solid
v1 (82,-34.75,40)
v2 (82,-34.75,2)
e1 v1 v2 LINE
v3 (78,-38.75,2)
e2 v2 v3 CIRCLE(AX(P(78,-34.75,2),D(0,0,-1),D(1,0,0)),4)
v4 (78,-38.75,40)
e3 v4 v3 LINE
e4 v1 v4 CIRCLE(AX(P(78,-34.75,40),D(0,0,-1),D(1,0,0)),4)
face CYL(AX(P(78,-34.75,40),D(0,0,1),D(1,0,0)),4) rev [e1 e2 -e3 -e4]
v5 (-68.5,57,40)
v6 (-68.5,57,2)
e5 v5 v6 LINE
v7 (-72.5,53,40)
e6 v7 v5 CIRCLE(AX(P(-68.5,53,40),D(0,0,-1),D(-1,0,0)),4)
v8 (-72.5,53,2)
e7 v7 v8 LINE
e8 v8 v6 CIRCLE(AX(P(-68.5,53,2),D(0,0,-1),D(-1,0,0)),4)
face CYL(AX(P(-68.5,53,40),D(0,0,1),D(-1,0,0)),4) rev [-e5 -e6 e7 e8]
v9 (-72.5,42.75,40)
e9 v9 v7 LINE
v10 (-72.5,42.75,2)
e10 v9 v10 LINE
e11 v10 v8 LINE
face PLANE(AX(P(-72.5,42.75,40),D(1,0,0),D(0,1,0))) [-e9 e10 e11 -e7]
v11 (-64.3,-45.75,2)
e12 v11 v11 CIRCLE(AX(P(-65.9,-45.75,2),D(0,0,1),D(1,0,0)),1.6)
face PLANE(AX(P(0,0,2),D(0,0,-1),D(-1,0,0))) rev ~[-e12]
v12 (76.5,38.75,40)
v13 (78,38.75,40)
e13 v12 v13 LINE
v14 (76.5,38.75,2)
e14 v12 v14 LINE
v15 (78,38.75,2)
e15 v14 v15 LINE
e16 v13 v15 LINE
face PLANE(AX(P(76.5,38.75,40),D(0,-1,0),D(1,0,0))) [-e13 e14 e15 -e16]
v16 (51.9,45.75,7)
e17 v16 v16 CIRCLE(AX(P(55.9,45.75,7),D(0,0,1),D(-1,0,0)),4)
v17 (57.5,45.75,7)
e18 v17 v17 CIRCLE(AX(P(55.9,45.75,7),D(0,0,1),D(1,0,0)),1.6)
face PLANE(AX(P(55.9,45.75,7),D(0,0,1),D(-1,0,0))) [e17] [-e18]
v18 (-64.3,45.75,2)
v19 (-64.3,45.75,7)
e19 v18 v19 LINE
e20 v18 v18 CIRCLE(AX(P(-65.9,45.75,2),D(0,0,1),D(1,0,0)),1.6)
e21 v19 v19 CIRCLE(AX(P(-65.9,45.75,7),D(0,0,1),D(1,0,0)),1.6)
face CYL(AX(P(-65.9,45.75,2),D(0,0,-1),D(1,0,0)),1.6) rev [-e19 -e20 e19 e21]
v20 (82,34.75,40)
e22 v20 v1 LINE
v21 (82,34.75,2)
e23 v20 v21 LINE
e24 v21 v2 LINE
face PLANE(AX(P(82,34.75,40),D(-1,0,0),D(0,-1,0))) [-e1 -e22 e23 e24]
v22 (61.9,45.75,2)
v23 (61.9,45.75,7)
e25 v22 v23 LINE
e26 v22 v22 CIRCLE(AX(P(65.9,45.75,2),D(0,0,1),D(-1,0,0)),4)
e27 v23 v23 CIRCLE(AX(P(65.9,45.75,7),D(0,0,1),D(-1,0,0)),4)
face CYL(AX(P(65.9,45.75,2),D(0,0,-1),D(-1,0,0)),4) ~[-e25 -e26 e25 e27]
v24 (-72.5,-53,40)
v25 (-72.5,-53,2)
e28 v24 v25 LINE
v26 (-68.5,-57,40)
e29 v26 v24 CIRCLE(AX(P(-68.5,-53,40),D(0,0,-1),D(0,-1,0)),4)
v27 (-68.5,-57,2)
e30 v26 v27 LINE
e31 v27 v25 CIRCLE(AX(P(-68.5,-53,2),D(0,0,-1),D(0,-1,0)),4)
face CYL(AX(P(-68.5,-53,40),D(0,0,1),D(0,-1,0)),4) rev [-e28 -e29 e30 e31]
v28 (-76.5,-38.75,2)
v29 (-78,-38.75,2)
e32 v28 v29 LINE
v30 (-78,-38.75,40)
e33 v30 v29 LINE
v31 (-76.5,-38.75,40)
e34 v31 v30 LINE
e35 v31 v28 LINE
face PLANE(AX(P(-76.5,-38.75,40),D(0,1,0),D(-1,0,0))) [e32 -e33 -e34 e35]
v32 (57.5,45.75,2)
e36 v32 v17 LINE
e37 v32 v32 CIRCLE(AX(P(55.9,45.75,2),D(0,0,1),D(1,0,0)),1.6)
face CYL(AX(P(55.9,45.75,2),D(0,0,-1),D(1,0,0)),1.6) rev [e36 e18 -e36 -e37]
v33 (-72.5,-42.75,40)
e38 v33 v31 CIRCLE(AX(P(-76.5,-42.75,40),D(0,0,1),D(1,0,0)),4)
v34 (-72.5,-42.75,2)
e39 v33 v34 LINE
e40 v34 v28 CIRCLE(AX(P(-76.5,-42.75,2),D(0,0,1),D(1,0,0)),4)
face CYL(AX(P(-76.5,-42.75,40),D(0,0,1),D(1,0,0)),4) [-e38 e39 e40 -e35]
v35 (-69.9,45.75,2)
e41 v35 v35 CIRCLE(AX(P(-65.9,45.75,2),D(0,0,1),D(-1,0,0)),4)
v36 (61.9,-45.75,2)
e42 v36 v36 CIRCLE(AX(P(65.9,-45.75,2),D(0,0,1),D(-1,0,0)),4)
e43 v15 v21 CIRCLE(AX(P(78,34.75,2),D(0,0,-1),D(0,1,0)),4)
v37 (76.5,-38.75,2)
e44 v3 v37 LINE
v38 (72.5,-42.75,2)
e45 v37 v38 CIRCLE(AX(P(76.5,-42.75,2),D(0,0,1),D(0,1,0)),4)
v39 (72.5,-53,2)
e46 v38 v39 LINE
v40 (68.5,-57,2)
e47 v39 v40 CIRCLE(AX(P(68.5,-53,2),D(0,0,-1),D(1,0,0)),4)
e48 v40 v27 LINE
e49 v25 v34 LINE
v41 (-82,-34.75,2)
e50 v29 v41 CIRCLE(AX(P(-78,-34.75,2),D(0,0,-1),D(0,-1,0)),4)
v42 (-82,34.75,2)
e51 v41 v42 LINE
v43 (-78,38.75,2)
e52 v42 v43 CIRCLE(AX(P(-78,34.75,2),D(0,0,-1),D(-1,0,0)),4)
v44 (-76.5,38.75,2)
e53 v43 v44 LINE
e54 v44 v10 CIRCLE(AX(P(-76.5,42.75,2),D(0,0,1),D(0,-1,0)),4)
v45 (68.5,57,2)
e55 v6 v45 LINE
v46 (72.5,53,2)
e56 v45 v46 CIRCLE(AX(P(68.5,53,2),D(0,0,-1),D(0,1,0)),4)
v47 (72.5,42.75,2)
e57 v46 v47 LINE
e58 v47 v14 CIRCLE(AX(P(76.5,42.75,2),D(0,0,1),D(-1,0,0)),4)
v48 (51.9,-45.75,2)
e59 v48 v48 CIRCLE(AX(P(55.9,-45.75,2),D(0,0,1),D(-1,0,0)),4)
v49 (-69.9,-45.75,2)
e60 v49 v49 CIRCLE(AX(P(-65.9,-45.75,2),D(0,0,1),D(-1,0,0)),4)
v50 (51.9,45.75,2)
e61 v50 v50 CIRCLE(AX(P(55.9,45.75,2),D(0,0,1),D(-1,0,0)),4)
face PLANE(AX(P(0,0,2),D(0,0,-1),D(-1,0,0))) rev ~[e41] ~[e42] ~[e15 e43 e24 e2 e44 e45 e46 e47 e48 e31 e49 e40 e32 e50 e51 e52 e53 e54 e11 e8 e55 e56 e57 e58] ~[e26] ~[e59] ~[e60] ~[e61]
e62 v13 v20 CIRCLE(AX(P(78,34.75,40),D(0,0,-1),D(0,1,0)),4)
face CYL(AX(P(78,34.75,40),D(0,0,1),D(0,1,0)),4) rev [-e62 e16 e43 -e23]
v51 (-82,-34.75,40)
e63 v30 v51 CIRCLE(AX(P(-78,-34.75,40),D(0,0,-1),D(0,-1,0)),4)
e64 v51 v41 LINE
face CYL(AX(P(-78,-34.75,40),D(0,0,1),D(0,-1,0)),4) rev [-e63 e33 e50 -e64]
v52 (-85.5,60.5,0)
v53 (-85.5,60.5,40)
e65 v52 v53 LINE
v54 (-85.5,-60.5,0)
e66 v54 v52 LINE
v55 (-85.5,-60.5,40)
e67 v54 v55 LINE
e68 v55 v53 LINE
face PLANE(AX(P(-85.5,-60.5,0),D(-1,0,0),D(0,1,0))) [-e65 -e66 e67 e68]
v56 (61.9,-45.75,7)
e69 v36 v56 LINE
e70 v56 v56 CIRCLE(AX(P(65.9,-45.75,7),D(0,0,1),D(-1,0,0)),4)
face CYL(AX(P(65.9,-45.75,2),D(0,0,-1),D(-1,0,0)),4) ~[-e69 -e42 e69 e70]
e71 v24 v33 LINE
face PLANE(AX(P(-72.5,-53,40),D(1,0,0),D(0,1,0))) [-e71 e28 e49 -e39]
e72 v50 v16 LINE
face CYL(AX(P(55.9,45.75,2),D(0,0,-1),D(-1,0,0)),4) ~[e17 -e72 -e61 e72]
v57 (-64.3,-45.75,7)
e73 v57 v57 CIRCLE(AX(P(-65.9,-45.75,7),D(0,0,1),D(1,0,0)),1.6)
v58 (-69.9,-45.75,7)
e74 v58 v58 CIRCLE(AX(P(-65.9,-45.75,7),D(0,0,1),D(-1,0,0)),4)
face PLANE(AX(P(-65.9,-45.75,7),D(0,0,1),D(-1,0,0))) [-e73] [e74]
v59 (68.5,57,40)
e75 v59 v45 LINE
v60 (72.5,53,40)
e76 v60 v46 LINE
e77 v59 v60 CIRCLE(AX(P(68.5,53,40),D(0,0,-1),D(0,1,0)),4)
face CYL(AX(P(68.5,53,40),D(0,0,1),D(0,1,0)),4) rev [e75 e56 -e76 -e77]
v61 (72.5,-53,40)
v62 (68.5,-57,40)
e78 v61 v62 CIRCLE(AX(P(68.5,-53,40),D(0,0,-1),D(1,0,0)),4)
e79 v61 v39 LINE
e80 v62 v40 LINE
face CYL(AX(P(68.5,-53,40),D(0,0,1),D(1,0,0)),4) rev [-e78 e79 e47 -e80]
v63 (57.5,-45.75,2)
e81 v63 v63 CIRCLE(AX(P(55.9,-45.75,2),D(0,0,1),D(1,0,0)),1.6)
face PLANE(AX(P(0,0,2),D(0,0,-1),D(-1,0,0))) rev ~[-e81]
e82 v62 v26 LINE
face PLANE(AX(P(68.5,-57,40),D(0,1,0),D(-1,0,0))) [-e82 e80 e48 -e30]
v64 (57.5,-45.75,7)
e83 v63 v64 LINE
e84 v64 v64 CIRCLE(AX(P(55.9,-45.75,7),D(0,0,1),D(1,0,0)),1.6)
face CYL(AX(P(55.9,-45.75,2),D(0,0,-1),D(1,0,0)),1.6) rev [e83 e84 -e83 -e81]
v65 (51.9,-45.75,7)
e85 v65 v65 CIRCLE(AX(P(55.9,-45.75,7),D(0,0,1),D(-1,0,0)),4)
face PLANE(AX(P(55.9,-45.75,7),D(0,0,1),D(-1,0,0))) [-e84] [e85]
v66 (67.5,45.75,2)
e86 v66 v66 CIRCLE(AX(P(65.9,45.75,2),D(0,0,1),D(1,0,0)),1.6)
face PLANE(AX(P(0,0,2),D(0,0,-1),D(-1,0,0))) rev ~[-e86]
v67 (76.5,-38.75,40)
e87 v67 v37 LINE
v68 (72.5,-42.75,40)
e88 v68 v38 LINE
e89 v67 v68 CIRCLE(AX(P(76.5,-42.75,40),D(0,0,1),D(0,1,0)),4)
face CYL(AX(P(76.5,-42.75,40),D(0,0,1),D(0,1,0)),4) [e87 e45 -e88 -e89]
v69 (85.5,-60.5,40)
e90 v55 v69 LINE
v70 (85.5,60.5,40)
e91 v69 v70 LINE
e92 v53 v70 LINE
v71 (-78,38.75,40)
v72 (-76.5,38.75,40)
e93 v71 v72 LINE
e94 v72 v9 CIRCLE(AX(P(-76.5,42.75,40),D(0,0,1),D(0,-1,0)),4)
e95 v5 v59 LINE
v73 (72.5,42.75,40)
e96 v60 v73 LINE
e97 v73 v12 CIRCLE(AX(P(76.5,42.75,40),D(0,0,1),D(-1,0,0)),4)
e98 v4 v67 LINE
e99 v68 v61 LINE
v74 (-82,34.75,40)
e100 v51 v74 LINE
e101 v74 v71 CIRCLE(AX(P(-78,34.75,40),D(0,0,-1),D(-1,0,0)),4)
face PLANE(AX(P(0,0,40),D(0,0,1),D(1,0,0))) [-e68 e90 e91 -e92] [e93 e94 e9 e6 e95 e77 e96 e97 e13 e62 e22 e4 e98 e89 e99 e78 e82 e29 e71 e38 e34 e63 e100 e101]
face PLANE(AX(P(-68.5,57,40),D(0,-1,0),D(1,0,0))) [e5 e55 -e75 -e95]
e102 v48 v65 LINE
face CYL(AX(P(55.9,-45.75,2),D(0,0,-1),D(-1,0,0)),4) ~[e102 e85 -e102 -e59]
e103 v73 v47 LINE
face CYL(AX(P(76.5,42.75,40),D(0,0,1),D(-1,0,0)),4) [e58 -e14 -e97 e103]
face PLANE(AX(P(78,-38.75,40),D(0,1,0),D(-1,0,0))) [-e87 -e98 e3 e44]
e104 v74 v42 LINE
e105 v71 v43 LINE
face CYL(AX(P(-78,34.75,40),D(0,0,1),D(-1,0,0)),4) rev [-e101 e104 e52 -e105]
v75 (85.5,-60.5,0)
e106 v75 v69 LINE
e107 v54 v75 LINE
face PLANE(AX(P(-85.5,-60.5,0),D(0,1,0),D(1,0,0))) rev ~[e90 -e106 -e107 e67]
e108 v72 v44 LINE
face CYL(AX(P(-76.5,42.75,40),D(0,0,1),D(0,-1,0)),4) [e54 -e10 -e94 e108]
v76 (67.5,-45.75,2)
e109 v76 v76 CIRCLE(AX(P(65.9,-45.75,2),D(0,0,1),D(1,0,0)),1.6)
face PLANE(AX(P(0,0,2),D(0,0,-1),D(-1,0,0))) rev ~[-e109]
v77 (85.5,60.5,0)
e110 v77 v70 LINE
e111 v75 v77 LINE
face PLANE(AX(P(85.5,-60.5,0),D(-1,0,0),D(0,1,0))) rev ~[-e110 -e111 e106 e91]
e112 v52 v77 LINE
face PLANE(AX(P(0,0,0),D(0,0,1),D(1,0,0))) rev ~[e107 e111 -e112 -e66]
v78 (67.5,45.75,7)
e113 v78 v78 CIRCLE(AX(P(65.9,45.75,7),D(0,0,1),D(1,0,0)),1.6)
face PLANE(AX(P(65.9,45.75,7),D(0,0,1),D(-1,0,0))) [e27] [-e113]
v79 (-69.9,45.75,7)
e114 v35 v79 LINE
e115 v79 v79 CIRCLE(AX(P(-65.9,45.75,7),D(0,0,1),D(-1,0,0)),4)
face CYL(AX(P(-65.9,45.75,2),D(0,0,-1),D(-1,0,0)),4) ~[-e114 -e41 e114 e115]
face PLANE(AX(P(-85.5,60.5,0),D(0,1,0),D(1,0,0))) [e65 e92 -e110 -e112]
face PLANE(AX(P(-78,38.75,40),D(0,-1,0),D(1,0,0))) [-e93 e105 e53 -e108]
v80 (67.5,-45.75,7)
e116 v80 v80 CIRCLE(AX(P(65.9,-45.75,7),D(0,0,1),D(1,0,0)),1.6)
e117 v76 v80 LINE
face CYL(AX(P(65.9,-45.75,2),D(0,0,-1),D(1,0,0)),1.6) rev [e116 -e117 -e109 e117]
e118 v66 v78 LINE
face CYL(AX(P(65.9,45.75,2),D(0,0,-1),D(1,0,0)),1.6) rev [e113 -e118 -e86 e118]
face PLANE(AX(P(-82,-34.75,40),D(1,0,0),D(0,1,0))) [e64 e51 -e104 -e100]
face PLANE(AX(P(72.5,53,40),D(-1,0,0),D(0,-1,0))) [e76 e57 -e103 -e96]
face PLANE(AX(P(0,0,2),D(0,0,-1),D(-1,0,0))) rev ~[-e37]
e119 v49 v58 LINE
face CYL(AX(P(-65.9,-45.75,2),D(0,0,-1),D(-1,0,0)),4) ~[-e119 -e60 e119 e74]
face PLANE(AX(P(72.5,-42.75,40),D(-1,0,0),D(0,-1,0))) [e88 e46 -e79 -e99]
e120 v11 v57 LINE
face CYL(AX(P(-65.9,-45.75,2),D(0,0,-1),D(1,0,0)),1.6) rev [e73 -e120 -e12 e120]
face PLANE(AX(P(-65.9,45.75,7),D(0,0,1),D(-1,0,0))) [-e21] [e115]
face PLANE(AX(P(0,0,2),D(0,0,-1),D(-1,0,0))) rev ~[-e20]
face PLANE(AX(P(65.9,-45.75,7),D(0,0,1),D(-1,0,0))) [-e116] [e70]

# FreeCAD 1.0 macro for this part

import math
import FreeCAD as App
import Part
import Sketcher


def add_polygon(sketch, points):
    """Adds a closed chain of lines whose ends are joined by coincident constraints."""
    first, n = sketch.GeometryCount, len(points)
    for a, b in zip(points, points[1:] + points[:1]):
        sketch.addGeometry(Part.LineSegment(App.Vector(*a, 0), App.Vector(*b, 0)), False)
    for i in range(n):
        sketch.addConstraint(Sketcher.Constraint("Coincident", first + i, 2, first + (i + 1) % n, 1))

doc = App.newDocument("Part")
params = doc.addObject("Spreadsheet::Sheet", "Params")
for row, (alias, value) in enumerate([
    ("sketch1_width", "171 mm"),
    ("sketch1_height", "121 mm"),
    ("pad1_length", "40 mm"),
    ("sketch2_radius", "4 mm"),
    ("sketch2_width", "137 mm"),
    ("sketch2_width2", "1.5 mm"),
    ("sketch2_height", "69.5 mm"),
    ("pocket1_length", "38 mm"),
    ("sketch3_diameter", "8 mm"),
    ("sketch3_diameter2", "3.2 mm"),
    ("pad2_length", "5 mm"),
], start=1):
    params.set(f"A{row}", alias)
    params.set(f"B{row}", "=" + value)
    params.setAlias(f"B{row}", alias)

body = doc.addObject("PartDesign::Body", "Body")

# Sketch on XY plane
sketch1 = body.newObject("Sketcher::SketchObject", "Sketch")
sketch1.AttachmentSupport = (doc.getObject("XY_Plane"), [""])
sketch1.MapMode = "FlatFace"
add_polygon(sketch1, [(-86, 60), (-86, -60), (86, -60), (86, 60)])  # lines 0-3
sketch1.addConstraint(Sketcher.Constraint("Vertical", 0))
sketch1.addConstraint(Sketcher.Constraint("Horizontal", 1))
sketch1.addConstraint(Sketcher.Constraint("Vertical", 2))
sketch1.addConstraint(Sketcher.Constraint("Horizontal", 3))
sketch1.addConstraint(Sketcher.Constraint("Symmetric", 0, 2, 2, 2, -1, 1))
sketch1.addConstraint(Sketcher.Constraint("DistanceX", 1, 1, 1, 2, 171.0))
sketch1.addConstraint(Sketcher.Constraint("DistanceY", 0, 2, 0, 1, 121.0))
sketch1.setExpression("Constraints[9]", "Params.sketch1_width")
sketch1.setExpression("Constraints[10]", "Params.sketch1_height")
pad1 = body.newObject("PartDesign::Pad", "Pad")
pad1.Profile = sketch1
pad1.setExpression("Length", "Params.pad1_length")

# Sketch on XY plane
sketch2 = body.newObject("Sketcher::SketchObject", "Sketch001")
sketch2.AttachmentSupport = (doc.getObject("XY_Plane"), [""])
sketch2.MapMode = "FlatFace"
sketch2.AttachmentOffset = App.Placement(App.Vector(0, 0, 40), App.Rotation())
sketch2.addGeometry(Part.LineSegment(App.Vector(-76.5, 38.8, 0), App.Vector(-78, 38.8, 0)), False)
sketch2.addGeometry(Part.ArcOfCircle(Part.Circle(App.Vector(-78, 34.8, 0), App.Vector(0, 0, 1), 4), math.radians(90), math.radians(180)), False)
sketch2.addGeometry(Part.LineSegment(App.Vector(-82, 34.8, 0), App.Vector(-82, -34.8, 0)), False)
sketch2.addGeometry(Part.ArcOfCircle(Part.Circle(App.Vector(-78, -34.8, 0), App.Vector(0, 0, 1), 4), math.radians(180), math.radians(270)), False)
sketch2.addGeometry(Part.LineSegment(App.Vector(-78, -38.8, 0), App.Vector(-76.5, -38.8, 0)), False)
sketch2.addGeometry(Part.ArcOfCircle(Part.Circle(App.Vector(-76.5, -42.7, 0), App.Vector(0, 0, 1), 4), math.radians(0), math.radians(90)), False)
sketch2.addGeometry(Part.LineSegment(App.Vector(-72.5, -42.8, 0), App.Vector(-72.5, -53, 0)), False)
sketch2.addGeometry(Part.ArcOfCircle(Part.Circle(App.Vector(-68.5, -53, 0), App.Vector(0, 0, 1), 4), math.radians(180), math.radians(270)), False)
sketch2.addGeometry(Part.LineSegment(App.Vector(-68.5, -57, 0), App.Vector(68.5, -57, 0)), False)
sketch2.addGeometry(Part.ArcOfCircle(Part.Circle(App.Vector(68.5, -53, 0), App.Vector(0, 0, 1), 4), math.radians(-90), math.radians(0)), False)
sketch2.addGeometry(Part.LineSegment(App.Vector(72.5, -53, 0), App.Vector(72.5, -42.8, 0)), False)
sketch2.addGeometry(Part.ArcOfCircle(Part.Circle(App.Vector(76.5, -42.7, 0), App.Vector(0, 0, 1), 4), math.radians(90), math.radians(180)), False)
sketch2.addGeometry(Part.LineSegment(App.Vector(76.5, -38.8, 0), App.Vector(78, -38.8, 0)), False)
sketch2.addGeometry(Part.ArcOfCircle(Part.Circle(App.Vector(78, -34.8, 0), App.Vector(0, 0, 1), 4), math.radians(-90), math.radians(0)), False)
sketch2.addGeometry(Part.LineSegment(App.Vector(82, -34.8, 0), App.Vector(82, 34.8, 0)), False)
sketch2.addGeometry(Part.ArcOfCircle(Part.Circle(App.Vector(78, 34.8, 0), App.Vector(0, 0, 1), 4), math.radians(0), math.radians(90)), False)
sketch2.addGeometry(Part.LineSegment(App.Vector(78, 38.8, 0), App.Vector(76.5, 38.8, 0)), False)
sketch2.addGeometry(Part.ArcOfCircle(Part.Circle(App.Vector(76.5, 42.7, 0), App.Vector(0, 0, 1), 4), math.radians(180), math.radians(270)), False)
sketch2.addGeometry(Part.LineSegment(App.Vector(72.5, 42.8, 0), App.Vector(72.5, 53, 0)), False)
sketch2.addGeometry(Part.ArcOfCircle(Part.Circle(App.Vector(68.5, 53, 0), App.Vector(0, 0, 1), 4), math.radians(0), math.radians(90)), False)
sketch2.addGeometry(Part.LineSegment(App.Vector(68.5, 57, 0), App.Vector(-68.5, 57, 0)), False)
sketch2.addGeometry(Part.ArcOfCircle(Part.Circle(App.Vector(-68.5, 53, 0), App.Vector(0, 0, 1), 4), math.radians(90), math.radians(180)), False)
sketch2.addGeometry(Part.LineSegment(App.Vector(-72.5, 53, 0), App.Vector(-72.5, 42.8, 0)), False)
sketch2.addGeometry(Part.ArcOfCircle(Part.Circle(App.Vector(-76.5, 42.7, 0), App.Vector(0, 0, 1), 4), math.radians(-90), math.radians(0)), False)
sketch2.addConstraint(Sketcher.Constraint("Tangent", 0, 2, 1, 1))
sketch2.addConstraint(Sketcher.Constraint("Tangent", 1, 2, 2, 1))
sketch2.addConstraint(Sketcher.Constraint("Tangent", 2, 2, 3, 1))
sketch2.addConstraint(Sketcher.Constraint("Tangent", 3, 2, 4, 1))
sketch2.addConstraint(Sketcher.Constraint("Tangent", 4, 2, 5, 2))
sketch2.addConstraint(Sketcher.Constraint("Tangent", 5, 1, 6, 1))
sketch2.addConstraint(Sketcher.Constraint("Tangent", 6, 2, 7, 1))
sketch2.addConstraint(Sketcher.Constraint("Tangent", 7, 2, 8, 1))
sketch2.addConstraint(Sketcher.Constraint("Tangent", 8, 2, 9, 1))
sketch2.addConstraint(Sketcher.Constraint("Tangent", 9, 2, 10, 1))
sketch2.addConstraint(Sketcher.Constraint("Tangent", 10, 2, 11, 2))
sketch2.addConstraint(Sketcher.Constraint("Tangent", 11, 1, 12, 1))
sketch2.addConstraint(Sketcher.Constraint("Tangent", 12, 2, 13, 1))
sketch2.addConstraint(Sketcher.Constraint("Tangent", 13, 2, 14, 1))
sketch2.addConstraint(Sketcher.Constraint("Tangent", 14, 2, 15, 1))
sketch2.addConstraint(Sketcher.Constraint("Tangent", 15, 2, 16, 1))
sketch2.addConstraint(Sketcher.Constraint("Tangent", 16, 2, 17, 2))
sketch2.addConstraint(Sketcher.Constraint("Tangent", 17, 1, 18, 1))
sketch2.addConstraint(Sketcher.Constraint("Tangent", 18, 2, 19, 1))
sketch2.addConstraint(Sketcher.Constraint("Tangent", 19, 2, 20, 1))
sketch2.addConstraint(Sketcher.Constraint("Tangent", 20, 2, 21, 1))
sketch2.addConstraint(Sketcher.Constraint("Tangent", 21, 2, 22, 1))
sketch2.addConstraint(Sketcher.Constraint("Tangent", 22, 2, 23, 2))
sketch2.addConstraint(Sketcher.Constraint("Tangent", 23, 1, 0, 1))
sketch2.addConstraint(Sketcher.Constraint("Horizontal", 0))
sketch2.addConstraint(Sketcher.Constraint("Vertical", 2))
sketch2.addConstraint(Sketcher.Constraint("Horizontal", 4))
sketch2.addConstraint(Sketcher.Constraint("Vertical", 6))
sketch2.addConstraint(Sketcher.Constraint("Horizontal", 8))
sketch2.addConstraint(Sketcher.Constraint("Vertical", 10))
sketch2.addConstraint(Sketcher.Constraint("Horizontal", 12))
sketch2.addConstraint(Sketcher.Constraint("Vertical", 14))
sketch2.addConstraint(Sketcher.Constraint("Horizontal", 16))
sketch2.addConstraint(Sketcher.Constraint("Vertical", 18))
sketch2.addConstraint(Sketcher.Constraint("Horizontal", 20))
sketch2.addConstraint(Sketcher.Constraint("Vertical", 22))
sketch2.addConstraint(Sketcher.Constraint("Equal", 1, 3))
sketch2.addConstraint(Sketcher.Constraint("Equal", 3, 5))
sketch2.addConstraint(Sketcher.Constraint("Equal", 5, 7))
sketch2.addConstraint(Sketcher.Constraint("Equal", 7, 9))
sketch2.addConstraint(Sketcher.Constraint("Equal", 9, 11))
sketch2.addConstraint(Sketcher.Constraint("Equal", 11, 13))
sketch2.addConstraint(Sketcher.Constraint("Equal", 13, 15))
sketch2.addConstraint(Sketcher.Constraint("Equal", 15, 17))
sketch2.addConstraint(Sketcher.Constraint("Equal", 17, 19))
sketch2.addConstraint(Sketcher.Constraint("Equal", 19, 21))
sketch2.addConstraint(Sketcher.Constraint("Equal", 21, 23))
sketch2.addConstraint(Sketcher.Constraint("Symmetric", 1, 3, 13, 3, -1, 1))
sketch2.addConstraint(Sketcher.Constraint("Symmetric", 5, 3, 17, 3, -1, 1))
sketch2.addConstraint(Sketcher.Constraint("Symmetric", 9, 3, 21, 3, -1, 1))
sketch2.addConstraint(Sketcher.Constraint("Symmetric", 5, 3, 11, 3, -2))
sketch2.addConstraint(Sketcher.Constraint("Radius", 1, 4.0))
sketch2.addConstraint(Sketcher.Constraint("DistanceX", 8, 1, 8, 2, 137.0))
sketch2.addConstraint(Sketcher.Constraint("DistanceX", 0, 2, 0, 1, 1.5))
sketch2.addConstraint(Sketcher.Constraint("DistanceY", 2, 2, 2, 1, 69.5))
sketch2.addConstraint(Sketcher.Constraint("DistanceY", 7, 3, -1, 1, 53.0))
sketch2.setExpression("Constraints[51]", "Params.sketch2_radius")
sketch2.setExpression("Constraints[52]", "Params.sketch2_width")
sketch2.setExpression("Constraints[53]", "Params.sketch2_width2")
sketch2.setExpression("Constraints[54]", "Params.sketch2_height")
pocket1 = body.newObject("PartDesign::Pocket", "Pocket")
pocket1.Profile = sketch2
pocket1.setExpression("Length", "Params.pocket1_length")

# Sketch on XY plane
sketch3 = body.newObject("Sketcher::SketchObject", "Sketch002")
sketch3.AttachmentSupport = (doc.getObject("XY_Plane"), [""])
sketch3.MapMode = "FlatFace"
sketch3.AttachmentOffset = App.Placement(App.Vector(0, 0, 2), App.Rotation())
sketch3.addGeometry(Part.Circle(App.Vector(-65.9, 45.8, 0), App.Vector(0, 0, 1), 4), False)
sketch3.addGeometry(Part.Circle(App.Vector(-65.9, 45.8, 0), App.Vector(0, 0, 1), 1.6), False)
sketch3.addGeometry(Part.Circle(App.Vector(65.9, 45.8, 0), App.Vector(0, 0, 1), 4), False)
sketch3.addGeometry(Part.Circle(App.Vector(65.9, 45.8, 0), App.Vector(0, 0, 1), 1.6), False)
sketch3.addGeometry(Part.Circle(App.Vector(65.9, -45.8, 0), App.Vector(0, 0, 1), 4), False)
sketch3.addGeometry(Part.Circle(App.Vector(65.9, -45.8, 0), App.Vector(0, 0, 1), 1.6), False)
sketch3.addGeometry(Part.Circle(App.Vector(-65.9, -45.8, 0), App.Vector(0, 0, 1), 4), False)
sketch3.addGeometry(Part.Circle(App.Vector(-65.9, -45.8, 0), App.Vector(0, 0, 1), 1.6), False)
sketch3.addGeometry(Part.Circle(App.Vector(55.9, -45.8, 0), App.Vector(0, 0, 1), 4), False)
sketch3.addGeometry(Part.Circle(App.Vector(55.9, -45.8, 0), App.Vector(0, 0, 1), 1.6), False)
sketch3.addGeometry(Part.Circle(App.Vector(55.9, 45.8, 0), App.Vector(0, 0, 1), 4), False)
sketch3.addGeometry(Part.Circle(App.Vector(55.9, 45.8, 0), App.Vector(0, 0, 1), 1.6), False)
sketch3.addConstraint(Sketcher.Constraint("Coincident", 1, 3, 0, 3))
sketch3.addConstraint(Sketcher.Constraint("Coincident", 3, 3, 2, 3))
sketch3.addConstraint(Sketcher.Constraint("Coincident", 5, 3, 4, 3))
sketch3.addConstraint(Sketcher.Constraint("Coincident", 7, 3, 6, 3))
sketch3.addConstraint(Sketcher.Constraint("Coincident", 9, 3, 8, 3))
sketch3.addConstraint(Sketcher.Constraint("Coincident", 11, 3, 10, 3))
sketch3.addConstraint(Sketcher.Constraint("Equal", 0, 2))
sketch3.addConstraint(Sketcher.Constraint("Equal", 1, 3))
sketch3.addConstraint(Sketcher.Constraint("Equal", 2, 4))
sketch3.addConstraint(Sketcher.Constraint("Equal", 3, 5))
sketch3.addConstraint(Sketcher.Constraint("Equal", 4, 6))
sketch3.addConstraint(Sketcher.Constraint("Equal", 5, 7))
sketch3.addConstraint(Sketcher.Constraint("Equal", 6, 8))
sketch3.addConstraint(Sketcher.Constraint("Equal", 7, 9))
sketch3.addConstraint(Sketcher.Constraint("Equal", 8, 10))
sketch3.addConstraint(Sketcher.Constraint("Equal", 9, 11))
sketch3.addConstraint(Sketcher.Constraint("Symmetric", 0, 3, 4, 3, -1, 1))
sketch3.addConstraint(Sketcher.Constraint("Symmetric", 2, 3, 6, 3, -1, 1))
sketch3.addConstraint(Sketcher.Constraint("Symmetric", 0, 3, 2, 3, -2))
sketch3.addConstraint(Sketcher.Constraint("Symmetric", 8, 3, 10, 3, -1))
sketch3.addConstraint(Sketcher.Constraint("Horizontal", 7, 3, 8, 3))
sketch3.addConstraint(Sketcher.Constraint("Diameter", 0, 8.0))
sketch3.addConstraint(Sketcher.Constraint("Diameter", 1, 3.2))
sketch3.addConstraint(Sketcher.Constraint("DistanceX", 8, 3, 4, 3, 10.0))
sketch3.addConstraint(Sketcher.Constraint("DistanceX", 0, 3, -1, 1, 65.9))
sketch3.addConstraint(Sketcher.Constraint("DistanceY", 4, 3, 2, 3, 91.5))
sketch3.setExpression("Constraints[21]", "Params.sketch3_diameter")
sketch3.setExpression("Constraints[22]", "Params.sketch3_diameter2")
pad2 = body.newObject("PartDesign::Pad", "Pad001")
pad2.Profile = sketch3
pad2.setExpression("Length", "Params.pad2_length")

doc.recompute()
